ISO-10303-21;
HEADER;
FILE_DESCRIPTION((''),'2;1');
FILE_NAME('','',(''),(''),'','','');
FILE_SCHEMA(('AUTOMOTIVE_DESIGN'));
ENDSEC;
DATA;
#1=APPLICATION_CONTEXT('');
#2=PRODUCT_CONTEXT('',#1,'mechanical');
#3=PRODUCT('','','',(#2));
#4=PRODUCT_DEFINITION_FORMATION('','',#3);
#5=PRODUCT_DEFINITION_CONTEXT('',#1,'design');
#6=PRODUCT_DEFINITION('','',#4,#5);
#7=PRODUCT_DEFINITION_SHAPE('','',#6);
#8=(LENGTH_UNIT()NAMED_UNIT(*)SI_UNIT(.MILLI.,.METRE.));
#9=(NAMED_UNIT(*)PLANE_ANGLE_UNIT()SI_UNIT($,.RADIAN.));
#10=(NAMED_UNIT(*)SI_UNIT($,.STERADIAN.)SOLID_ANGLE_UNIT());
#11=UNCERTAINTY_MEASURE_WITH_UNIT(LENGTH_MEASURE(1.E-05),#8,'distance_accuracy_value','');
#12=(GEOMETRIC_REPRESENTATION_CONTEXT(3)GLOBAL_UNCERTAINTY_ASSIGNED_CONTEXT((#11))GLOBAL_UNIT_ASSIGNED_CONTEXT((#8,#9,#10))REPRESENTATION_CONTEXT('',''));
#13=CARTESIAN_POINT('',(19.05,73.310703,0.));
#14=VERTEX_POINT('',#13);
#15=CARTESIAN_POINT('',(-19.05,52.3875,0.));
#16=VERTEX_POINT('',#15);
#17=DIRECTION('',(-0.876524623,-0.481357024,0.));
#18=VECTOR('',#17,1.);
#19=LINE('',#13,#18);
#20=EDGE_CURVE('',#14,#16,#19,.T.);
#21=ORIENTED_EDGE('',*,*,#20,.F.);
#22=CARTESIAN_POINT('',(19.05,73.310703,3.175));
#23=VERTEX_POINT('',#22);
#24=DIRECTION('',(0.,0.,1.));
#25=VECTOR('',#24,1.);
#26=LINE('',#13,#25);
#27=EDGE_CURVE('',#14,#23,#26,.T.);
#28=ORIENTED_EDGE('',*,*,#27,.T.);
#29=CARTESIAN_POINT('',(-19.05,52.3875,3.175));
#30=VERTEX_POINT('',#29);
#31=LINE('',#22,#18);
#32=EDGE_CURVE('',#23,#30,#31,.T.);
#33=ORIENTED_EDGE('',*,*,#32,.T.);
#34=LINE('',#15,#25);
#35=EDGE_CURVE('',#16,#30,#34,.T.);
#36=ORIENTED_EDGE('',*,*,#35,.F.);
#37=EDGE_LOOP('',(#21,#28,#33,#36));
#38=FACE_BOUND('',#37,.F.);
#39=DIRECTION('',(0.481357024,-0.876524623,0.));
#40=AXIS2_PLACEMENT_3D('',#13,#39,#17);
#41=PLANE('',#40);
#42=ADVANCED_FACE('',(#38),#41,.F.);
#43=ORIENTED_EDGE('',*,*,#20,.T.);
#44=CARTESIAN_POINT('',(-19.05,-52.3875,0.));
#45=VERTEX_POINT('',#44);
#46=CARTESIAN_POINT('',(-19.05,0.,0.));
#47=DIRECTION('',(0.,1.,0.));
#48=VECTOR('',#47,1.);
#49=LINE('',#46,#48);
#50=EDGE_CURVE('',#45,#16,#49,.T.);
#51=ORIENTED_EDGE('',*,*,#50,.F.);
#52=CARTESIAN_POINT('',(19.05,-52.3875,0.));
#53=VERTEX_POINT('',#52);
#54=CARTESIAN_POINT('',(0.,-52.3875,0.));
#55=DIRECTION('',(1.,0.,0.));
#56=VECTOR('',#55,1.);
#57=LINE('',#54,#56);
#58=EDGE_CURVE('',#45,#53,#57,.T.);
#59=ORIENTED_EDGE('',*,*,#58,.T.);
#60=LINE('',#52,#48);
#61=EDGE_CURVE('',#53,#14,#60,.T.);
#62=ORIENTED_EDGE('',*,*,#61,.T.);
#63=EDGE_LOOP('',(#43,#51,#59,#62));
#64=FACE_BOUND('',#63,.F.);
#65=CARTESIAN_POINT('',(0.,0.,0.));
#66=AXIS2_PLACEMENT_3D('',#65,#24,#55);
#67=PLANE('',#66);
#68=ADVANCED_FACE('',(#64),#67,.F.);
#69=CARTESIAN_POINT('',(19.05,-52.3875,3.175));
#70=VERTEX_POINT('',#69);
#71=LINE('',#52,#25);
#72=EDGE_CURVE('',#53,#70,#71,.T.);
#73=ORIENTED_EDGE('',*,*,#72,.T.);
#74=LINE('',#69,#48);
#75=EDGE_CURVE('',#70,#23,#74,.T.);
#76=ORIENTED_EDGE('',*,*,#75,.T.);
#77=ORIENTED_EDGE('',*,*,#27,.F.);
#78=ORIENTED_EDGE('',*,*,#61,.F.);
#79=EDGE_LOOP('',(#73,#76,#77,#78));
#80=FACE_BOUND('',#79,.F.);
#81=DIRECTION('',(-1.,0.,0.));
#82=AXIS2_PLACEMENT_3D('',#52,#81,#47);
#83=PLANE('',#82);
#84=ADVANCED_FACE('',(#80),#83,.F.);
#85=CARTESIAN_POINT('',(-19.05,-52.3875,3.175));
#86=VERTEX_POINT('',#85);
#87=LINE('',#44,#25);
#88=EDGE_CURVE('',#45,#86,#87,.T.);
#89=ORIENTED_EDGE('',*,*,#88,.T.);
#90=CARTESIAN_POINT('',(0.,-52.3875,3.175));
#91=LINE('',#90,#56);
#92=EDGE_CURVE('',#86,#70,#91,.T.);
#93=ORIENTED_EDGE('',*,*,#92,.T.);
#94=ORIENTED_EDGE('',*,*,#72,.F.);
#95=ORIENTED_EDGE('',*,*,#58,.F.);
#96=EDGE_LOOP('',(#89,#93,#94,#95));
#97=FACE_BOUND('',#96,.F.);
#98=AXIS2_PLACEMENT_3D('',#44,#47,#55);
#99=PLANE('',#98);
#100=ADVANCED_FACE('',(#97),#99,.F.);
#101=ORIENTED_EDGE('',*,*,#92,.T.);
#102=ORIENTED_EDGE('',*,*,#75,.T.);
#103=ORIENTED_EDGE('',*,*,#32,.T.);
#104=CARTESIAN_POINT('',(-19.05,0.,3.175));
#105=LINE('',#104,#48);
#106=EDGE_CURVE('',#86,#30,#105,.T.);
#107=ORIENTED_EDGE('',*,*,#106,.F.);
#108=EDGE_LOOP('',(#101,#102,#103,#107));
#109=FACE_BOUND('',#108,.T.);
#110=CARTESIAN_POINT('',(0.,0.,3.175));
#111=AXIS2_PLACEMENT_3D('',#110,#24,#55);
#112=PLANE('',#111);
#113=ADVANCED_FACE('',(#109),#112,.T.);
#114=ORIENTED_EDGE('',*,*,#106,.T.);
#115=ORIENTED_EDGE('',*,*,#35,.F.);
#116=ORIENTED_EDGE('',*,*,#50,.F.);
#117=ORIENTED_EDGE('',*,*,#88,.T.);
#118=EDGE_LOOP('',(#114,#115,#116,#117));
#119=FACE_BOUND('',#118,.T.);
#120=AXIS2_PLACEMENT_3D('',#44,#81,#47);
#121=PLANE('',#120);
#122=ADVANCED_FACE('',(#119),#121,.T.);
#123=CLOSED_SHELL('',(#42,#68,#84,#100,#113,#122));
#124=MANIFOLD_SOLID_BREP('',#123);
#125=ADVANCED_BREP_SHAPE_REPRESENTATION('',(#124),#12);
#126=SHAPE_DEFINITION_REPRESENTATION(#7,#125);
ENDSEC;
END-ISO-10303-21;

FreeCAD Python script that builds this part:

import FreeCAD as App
import Part
import Sketcher
from FreeCAD import Vector
Q = App.Units.Quantity


def add_polygon(sketch, points):
    """Adds a closed chain of lines whose ends are joined by coincident constraints."""
    first, n = sketch.GeometryCount, len(points)
    for a, b in zip(points, points[1:] + points[:1]):
        sketch.addGeometry(Part.LineSegment(App.Vector(*a, 0), App.Vector(*b, 0)), False)
    for i in range(n):
        sketch.addConstraint(Sketcher.Constraint("Coincident", first + i, 2, first + (i + 1) % n, 1))

doc = App.newDocument("Part")
body = doc.addObject("PartDesign::Body", "Body")

# Sketch on XY plane
sketch1 = body.newObject("Sketcher::SketchObject", "Sketch")
sketch1.AttachmentSupport = (doc.getObject("XY_Plane"), [""])
sketch1.MapMode = "FlatFace"
add_polygon(sketch1, [(-19, 52), (-19, -52), (19, -52), (19, 73)])  # lines 0-3
sketch1.addConstraint([
    Sketcher.Constraint("Vertical", 0),
    Sketcher.Constraint("Horizontal", 1),
    Sketcher.Constraint("Vertical", 2),
    Sketcher.Constraint("Symmetric", 1, 2, 3, 2, -1, 1),
    Sketcher.Constraint("DistanceX", 1, 1, 1, 2, Q("1.5 in")),
    Sketcher.Constraint("DistanceY", 0, 2, 0, 1, Q("4.125 in")),
    Sketcher.Constraint("Distance", 3, Q("43.467119 mm")),
])
pad1 = body.newObject("PartDesign::Pad", "Pad")
pad1.Profile = sketch1
pad1.Length = Q("0.125 in")

doc.recompute()
